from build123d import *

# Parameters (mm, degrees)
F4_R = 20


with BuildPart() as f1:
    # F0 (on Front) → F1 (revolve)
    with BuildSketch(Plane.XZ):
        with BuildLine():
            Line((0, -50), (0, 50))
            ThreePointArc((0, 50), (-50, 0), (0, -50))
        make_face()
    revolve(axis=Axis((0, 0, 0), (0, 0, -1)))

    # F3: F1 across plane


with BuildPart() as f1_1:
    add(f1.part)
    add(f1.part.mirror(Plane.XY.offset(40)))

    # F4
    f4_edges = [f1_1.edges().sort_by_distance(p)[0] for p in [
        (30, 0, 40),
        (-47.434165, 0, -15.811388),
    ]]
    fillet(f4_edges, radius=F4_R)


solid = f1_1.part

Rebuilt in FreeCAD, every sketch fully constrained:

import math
import FreeCAD as App
import Part
import Sketcher

V = App.Vector
Q = App.Units.Quantity


def edges_at(feature, points):
    """Names of the edges that pass closest to the given points."""
    edges = feature.Shape.Edges
    near = lambda p: min(range(len(edges)), key=lambda i: edges[i].distToShape(Part.Vertex(*p))[0])
    return sorted({f"Edge{near(p) + 1}" for p in points})

doc = App.newDocument("Part")
params = doc.addObject("Spreadsheet::Sheet", "Params")
for row, (alias, value) in enumerate([
    ("sketch1_radius", "50 mm"),
    ("revolution_angle", "360 deg"),
    ("fillet_radius", "20 mm"),
], start=1):
    params.set(f"A{row}", alias)
    params.set(f"B{row}", "=" + value)
    params.setAlias(f"B{row}", alias)

body = doc.addObject("PartDesign::Body", "Body")

sketch1 = body.newObject("Sketcher::SketchObject", "Sketch")
sketch1.AttachmentSupport = (doc.getObject("XZ_Plane"), [""])
sketch1.MapMode = "FlatFace"
sketch1.addGeometry(Part.LineSegment(V(0, -50, 0), V(0, 50, 0)), False)
sketch1.addGeometry(Part.ArcOfCircle(Part.Circle(V(0, 0, 0), V(0, 0, 1), 50), math.radians(90), math.radians(270)), False)
sketch1.addConstraint(Sketcher.Constraint("Coincident", 0, 1, 1, 2))
sketch1.addConstraint(Sketcher.Constraint("Coincident", 1, 1, 0, 2))
sketch1.addConstraint(Sketcher.Constraint("Vertical", 0))
sketch1.addConstraint(Sketcher.Constraint("Coincident", 1, 3, -1, 1))
sketch1.addConstraint(Sketcher.Constraint("PointOnObject", 0, 1, -2))
sketch1.addConstraint(Sketcher.Constraint("Radius", 1, Q("50 mm")))
sketch1.setExpression("Constraints[5]", "Params.sketch1_radius")
revolution = body.newObject("PartDesign::Revolution", "Revolution")
revolution.Profile = sketch1
revolution.ReferenceAxis = (sketch1, ["V_Axis"])
revolution.setExpression("Angle", "Params.revolution_angle")
body2 = doc.addObject("PartDesign::Body", "Body001")
doc.recompute()

body2.BaseFeature = body
doc.recompute()

mirroring = doc.addObject("Part::Mirroring", "Mirroring")
mirroring.Source = body
mirroring.Base = V(0, 0, 40)
mirroring.Normal = V(0, 0, 1)
body3 = doc.addObject("PartDesign::Body", "Body002")
body3.BaseFeature = mirroring
boolean = body2.newObject("PartDesign::Boolean", "Boolean")
boolean.Type = "Fuse"
boolean.addObjects([body3])
doc.recompute()

fillet = body2.newObject("PartDesign::Fillet", "Fillet")
fillet.Base = (boolean, edges_at(boolean, [(30, 0, 40), (-47.434, 0, -15.811)]))
fillet.setExpression("Radius", "Params.fillet_radius")
mirroring.Visibility = False

doc.recompute()
